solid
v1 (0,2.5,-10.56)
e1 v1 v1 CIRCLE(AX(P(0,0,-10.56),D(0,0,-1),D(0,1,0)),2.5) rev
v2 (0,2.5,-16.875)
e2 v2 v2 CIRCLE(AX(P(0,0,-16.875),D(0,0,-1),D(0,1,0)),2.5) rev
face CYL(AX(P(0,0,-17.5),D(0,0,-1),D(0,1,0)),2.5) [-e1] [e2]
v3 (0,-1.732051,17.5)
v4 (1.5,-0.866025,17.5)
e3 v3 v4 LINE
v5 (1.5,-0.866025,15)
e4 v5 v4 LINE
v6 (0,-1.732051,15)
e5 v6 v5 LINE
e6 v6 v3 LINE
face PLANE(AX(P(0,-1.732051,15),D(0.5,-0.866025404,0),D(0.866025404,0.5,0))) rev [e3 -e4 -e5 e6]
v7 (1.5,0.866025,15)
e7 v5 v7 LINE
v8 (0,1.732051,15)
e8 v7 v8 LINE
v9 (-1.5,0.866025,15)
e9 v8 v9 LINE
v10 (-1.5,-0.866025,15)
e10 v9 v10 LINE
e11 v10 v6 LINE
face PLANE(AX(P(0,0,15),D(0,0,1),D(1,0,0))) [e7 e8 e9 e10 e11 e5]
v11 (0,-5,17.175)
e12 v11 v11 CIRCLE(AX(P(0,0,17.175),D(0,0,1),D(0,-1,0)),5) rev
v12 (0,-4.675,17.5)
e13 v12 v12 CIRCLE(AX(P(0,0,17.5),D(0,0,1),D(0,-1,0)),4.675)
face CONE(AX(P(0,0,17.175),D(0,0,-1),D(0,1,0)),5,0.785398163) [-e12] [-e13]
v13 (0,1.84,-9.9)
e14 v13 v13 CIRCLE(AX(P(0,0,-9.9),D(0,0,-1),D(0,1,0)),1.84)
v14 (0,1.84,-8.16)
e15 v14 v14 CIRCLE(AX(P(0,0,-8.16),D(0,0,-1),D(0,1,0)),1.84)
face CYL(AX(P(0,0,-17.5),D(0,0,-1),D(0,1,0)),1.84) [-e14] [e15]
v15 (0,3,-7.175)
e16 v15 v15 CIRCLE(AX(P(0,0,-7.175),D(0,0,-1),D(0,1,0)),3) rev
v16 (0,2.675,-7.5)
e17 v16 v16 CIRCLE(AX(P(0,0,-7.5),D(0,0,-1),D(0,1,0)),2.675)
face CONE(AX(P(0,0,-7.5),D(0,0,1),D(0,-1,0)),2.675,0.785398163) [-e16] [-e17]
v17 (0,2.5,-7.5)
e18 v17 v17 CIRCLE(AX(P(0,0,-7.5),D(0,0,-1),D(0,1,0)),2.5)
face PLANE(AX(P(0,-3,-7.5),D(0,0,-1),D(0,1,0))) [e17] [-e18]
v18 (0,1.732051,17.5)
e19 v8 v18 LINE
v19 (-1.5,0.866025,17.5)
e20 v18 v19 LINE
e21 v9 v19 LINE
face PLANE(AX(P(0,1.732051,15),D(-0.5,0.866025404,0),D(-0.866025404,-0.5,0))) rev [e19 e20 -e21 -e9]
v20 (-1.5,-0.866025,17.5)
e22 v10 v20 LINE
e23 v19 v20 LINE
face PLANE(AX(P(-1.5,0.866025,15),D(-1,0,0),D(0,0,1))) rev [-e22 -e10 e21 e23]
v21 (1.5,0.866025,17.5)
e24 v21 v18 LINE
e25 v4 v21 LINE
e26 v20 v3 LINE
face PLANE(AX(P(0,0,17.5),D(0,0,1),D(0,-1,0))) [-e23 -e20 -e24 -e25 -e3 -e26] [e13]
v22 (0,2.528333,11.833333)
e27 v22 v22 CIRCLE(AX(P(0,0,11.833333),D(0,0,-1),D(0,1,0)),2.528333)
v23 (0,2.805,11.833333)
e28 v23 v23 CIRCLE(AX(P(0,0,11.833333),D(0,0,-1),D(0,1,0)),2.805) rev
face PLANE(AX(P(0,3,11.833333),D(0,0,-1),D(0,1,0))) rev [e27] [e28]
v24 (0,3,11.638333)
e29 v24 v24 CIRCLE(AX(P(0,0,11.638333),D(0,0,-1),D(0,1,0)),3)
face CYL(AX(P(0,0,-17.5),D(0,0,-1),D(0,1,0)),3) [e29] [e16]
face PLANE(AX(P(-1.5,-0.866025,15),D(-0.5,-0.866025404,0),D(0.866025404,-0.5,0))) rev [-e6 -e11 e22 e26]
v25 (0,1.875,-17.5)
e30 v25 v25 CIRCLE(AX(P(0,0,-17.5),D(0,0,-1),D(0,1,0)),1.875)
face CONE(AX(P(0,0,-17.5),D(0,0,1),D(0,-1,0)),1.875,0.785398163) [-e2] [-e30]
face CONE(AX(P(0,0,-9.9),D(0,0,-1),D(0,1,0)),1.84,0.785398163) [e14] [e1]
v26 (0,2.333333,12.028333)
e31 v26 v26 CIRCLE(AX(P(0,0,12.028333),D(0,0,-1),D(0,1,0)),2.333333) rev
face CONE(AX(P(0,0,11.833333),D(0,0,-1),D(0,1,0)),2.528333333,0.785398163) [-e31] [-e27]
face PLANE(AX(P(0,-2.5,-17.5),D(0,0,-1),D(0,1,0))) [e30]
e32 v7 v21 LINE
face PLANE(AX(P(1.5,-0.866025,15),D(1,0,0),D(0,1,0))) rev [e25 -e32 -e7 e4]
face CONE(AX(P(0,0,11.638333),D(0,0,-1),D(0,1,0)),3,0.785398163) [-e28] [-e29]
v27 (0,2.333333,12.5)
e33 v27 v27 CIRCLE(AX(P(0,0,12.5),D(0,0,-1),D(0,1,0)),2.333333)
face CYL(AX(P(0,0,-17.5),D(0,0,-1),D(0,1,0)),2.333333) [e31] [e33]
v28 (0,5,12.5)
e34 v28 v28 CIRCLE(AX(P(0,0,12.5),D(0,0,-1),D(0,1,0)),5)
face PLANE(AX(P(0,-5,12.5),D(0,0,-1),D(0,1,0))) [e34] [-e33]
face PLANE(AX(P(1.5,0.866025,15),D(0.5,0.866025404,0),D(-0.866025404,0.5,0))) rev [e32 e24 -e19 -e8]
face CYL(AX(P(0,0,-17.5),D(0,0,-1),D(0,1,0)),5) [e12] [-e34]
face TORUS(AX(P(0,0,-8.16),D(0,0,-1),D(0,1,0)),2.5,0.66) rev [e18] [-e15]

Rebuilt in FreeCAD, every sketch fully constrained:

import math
import FreeCAD as App
import Part
import Sketcher
Q = App.Units.Quantity


def edges_at(feature, points):
    """Names of the edges that pass closest to the given points."""
    edges = feature.Shape.Edges
    near = lambda p: min(range(len(edges)), key=lambda i: edges[i].distToShape(Part.Vertex(*p))[0])
    return sorted({f"Edge{near(p) + 1}" for p in points})


def add_polygon(sketch, points):
    """Adds a closed chain of lines whose ends are joined by coincident constraints."""
    first, n = sketch.GeometryCount, len(points)
    for a, b in zip(points, points[1:] + points[:1]):
        sketch.addGeometry(Part.LineSegment(App.Vector(*a, 0), App.Vector(*b, 0)), False)
    for i in range(n):
        sketch.addConstraint(Sketcher.Constraint("Coincident", first + i, 2, first + (i + 1) % n, 1))

doc = App.newDocument("Part")
params = doc.addObject("Spreadsheet::Sheet", "Params")
for row, (alias, value) in enumerate([
    ("sketch1_width", "5 mm"),
    ("sketch1_width2", "2 mm"),
    ("sketch1_height", "35 mm"),
    ("sketch1_height2", "10 mm"),
    ("sketch1_width3", "2.5 mm"),
    ("revolution_angle", "360 deg"),
    ("groove_angle", "360 deg"),
    ("chamfer_size", "0.195 mm"),
    ("sketch3_radius", "0.66 mm"),
    ("sketch3_width", "0.5 mm"),
    ("sketch3_height", "3.56 mm"),
    ("groove2_angle", "360 deg"),
    ("chamfer2_size", "0.625 mm"),
    ("chamfer3_size", "0.325 mm"),
    ("pocket1_length", "2.5 mm"),
], start=1):
    params.set(f"A{row}", alias)
    params.set(f"B{row}", "=" + value)
    params.setAlias(f"B{row}", alias)

body = doc.addObject("PartDesign::Body", "Body")

# Sketch on YZ plane
sketch1 = body.newObject("Sketcher::SketchObject", "Sketch")
sketch1.AttachmentSupport = (doc.getObject("YZ_Plane"), [""])
sketch1.MapMode = "FlatFace"
add_polygon(sketch1, [(5, 12.5), (5, 17.5), (0, 17.5), (0, -17.5), (2.5, -17.5), (2.5, -7.5), (3, -7.5), (3, 12.5)])  # lines 0-7
sketch1.addConstraint([
    Sketcher.Constraint("Vertical", 0),
    Sketcher.Constraint("Horizontal", 1),
    Sketcher.Constraint("Vertical", 2),
    Sketcher.Constraint("Horizontal", 3),
    Sketcher.Constraint("Vertical", 4),
    Sketcher.Constraint("Horizontal", 5),
    Sketcher.Constraint("Vertical", 6),
    Sketcher.Constraint("Horizontal", 7),
    Sketcher.Constraint("Symmetric", 1, 2, 2, 2, -1, 1),
    Sketcher.Constraint("Equal", 1, 0),
    Sketcher.Constraint("DistanceX", 1, 2, 1, 1, Q("5 mm")),
    Sketcher.Constraint("DistanceX", 7, 1, 7, 2, Q("2 mm")),
    Sketcher.Constraint("DistanceY", 2, 2, 2, 1, Q("35 mm")),
    Sketcher.Constraint("DistanceY", 4, 1, 4, 2, Q("10 mm")),
    Sketcher.Constraint("DistanceX", 3, 1, 3, 2, Q("2.5 mm")),
])
sketch1.setExpression("Constraints[18]", "Params.sketch1_width")
sketch1.setExpression("Constraints[19]", "Params.sketch1_width2")
sketch1.setExpression("Constraints[20]", "Params.sketch1_height")
sketch1.setExpression("Constraints[21]", "Params.sketch1_height2")
sketch1.setExpression("Constraints[22]", "Params.sketch1_width3")
revolution = body.newObject("PartDesign::Revolution", "Revolution")
revolution.Profile = sketch1
revolution.ReferenceAxis = (sketch1, ["V_Axis"])
revolution.setExpression("Angle", "Params.revolution_angle")

# Sketch on YZ plane
sketch2 = body.newObject("Sketcher::SketchObject", "Sketch001")
sketch2.AttachmentSupport = (doc.getObject("YZ_Plane"), [""])
sketch2.MapMode = "FlatFace"
add_polygon(sketch2, [(3, 12.5), (2.3, 12.5), (2.3, 11.8), (3, 11.8)])  # lines 0-3
sketch2.addConstraint([
    Sketcher.Constraint("Horizontal", 0),
    Sketcher.Constraint("Vertical", 1),
    Sketcher.Constraint("Horizontal", 2),
    Sketcher.Constraint("Vertical", 3),
    Sketcher.Constraint("Equal", 2, 1),
    Sketcher.Constraint("DistanceX", -1, 1, 2, 2, Q("3 mm")),
    Sketcher.Constraint("DistanceY", -1, 1, 0, 2, Q("12.5 mm")),
    Sketcher.Constraint("DistanceX", 0, 2, 0, 1, Q("0.666667 mm")),
])
groove = body.newObject("PartDesign::Groove", "Groove")
groove.Profile = sketch2
groove.ReferenceAxis = (sketch2, ["V_Axis"])
groove.setExpression("Angle", "Params.groove_angle")
doc.recompute()

chamfer = body.newObject("PartDesign::Chamfer", "Chamfer")
chamfer.Base = (groove, edges_at(groove, [(0, -2.333, 11.833), (0, -3, 11.833)]))
chamfer.setExpression("Size", "Params.chamfer_size")

# Sketch on YZ plane
sketch3 = body.newObject("Sketcher::SketchObject", "Sketch002")
sketch3.AttachmentSupport = (doc.getObject("YZ_Plane"), [""])
sketch3.MapMode = "FlatFace"
sketch3.addGeometry([
    Part.LineSegment(App.Vector(3, -11.1, 0), App.Vector(3, -7.5, 0)),  # 0
    Part.LineSegment(App.Vector(3, -7.5, 0), App.Vector(2.5, -7.5, 0)),  # 1
    Part.ArcOfCircle(Part.Circle(App.Vector(2.5, -8.2, 0), App.Vector(0, 0, 1), 0.7), math.radians(90), math.radians(180)),  # 2
    Part.LineSegment(App.Vector(1.8, -8.2, 0), App.Vector(1.8, -9.9, 0)),  # 3
    Part.LineSegment(App.Vector(1.8, -9.9, 0), App.Vector(3, -11.1, 0)),  # 4
], False)
sketch3.addConstraint([
    Sketcher.Constraint("Coincident", 0, 2, 1, 1),
    Sketcher.Constraint("Tangent", 1, 2, 2, 1),
    Sketcher.Constraint("Tangent", 2, 2, 3, 1),
    Sketcher.Constraint("Coincident", 3, 2, 4, 1),
    Sketcher.Constraint("Coincident", 4, 2, 0, 1),
    Sketcher.Constraint("Vertical", 0),
    Sketcher.Constraint("Horizontal", 1),
    Sketcher.Constraint("Vertical", 3),
    Sketcher.Constraint("Angle", 4, Q("-45 deg")),
    Sketcher.Constraint("Radius", 2, Q("0.66 mm")),
    Sketcher.Constraint("DistanceX", 1, 2, 1, 1, Q("0.5 mm")),
    Sketcher.Constraint("DistanceX", -1, 1, 0, 2, Q("3 mm")),
    Sketcher.Constraint("DistanceY", 0, 1, 0, 2, Q("3.56 mm")),
    Sketcher.Constraint("DistanceY", 0, 2, -1, 1, Q("7.5 mm")),
])
sketch3.setExpression("Constraints[9]", "Params.sketch3_radius")
sketch3.setExpression("Constraints[10]", "Params.sketch3_width")
sketch3.setExpression("Constraints[12]", "Params.sketch3_height")
groove2 = body.newObject("PartDesign::Groove", "Groove001")
groove2.Profile = sketch3
groove2.ReferenceAxis = (sketch3, ["V_Axis"])
groove2.setExpression("Angle", "Params.groove2_angle")
doc.recompute()

chamfer2 = body.newObject("PartDesign::Chamfer", "Chamfer001")
chamfer2.Base = (groove2, edges_at(groove2, [(0, -2.5, -17.5)]))
chamfer2.setExpression("Size", "Params.chamfer2_size")
doc.recompute()

chamfer3 = body.newObject("PartDesign::Chamfer", "Chamfer002")
chamfer3.Base = (chamfer2, edges_at(chamfer2, [(0, -3, -7.5), (0, -5, 17.5)]))
chamfer3.setExpression("Size", "Params.chamfer3_size")

# Sketch on XY plane
sketch4 = body.newObject("Sketcher::SketchObject", "Sketch003")
sketch4.AttachmentSupport = (doc.getObject("XY_Plane"), [""])
sketch4.MapMode = "FlatFace"
sketch4.AttachmentOffset = App.Placement(App.Vector(0, 0, 17.5), App.Rotation())
add_polygon(sketch4, [(1.5, 0.9), (0, 1.7), (-1.5, 0.9), (-1.5, -0.9), (0, -1.7), (1.5, -0.9)])  # lines 0-5
sketch4.addConstraint([
    Sketcher.Constraint("Vertical", 2),
    Sketcher.Constraint("Vertical", 5),
    Sketcher.Constraint("Symmetric", 0, 2, 3, 2, -1, 1),
    Sketcher.Constraint("Symmetric", 1, 2, 4, 2, -1, 1),
    Sketcher.Constraint("PointOnObject", 0, 2, -2),
    Sketcher.Constraint("Parallel", 0, 3),
    Sketcher.Constraint("Horizontal", 2, 2, 4, 2),
    Sketcher.Constraint("Angle", 0, Q("150 deg")),
    Sketcher.Constraint("DistanceX", 2, 2, 4, 2, Q("3 mm")),
    Sketcher.Constraint("DistanceY", 2, 2, 2, 1, Q("1.732051 mm")),
])
pocket1 = body.newObject("PartDesign::Pocket", "Pocket")
pocket1.Profile = sketch4
pocket1.setExpression("Length", "Params.pocket1_length")

doc.recompute()
